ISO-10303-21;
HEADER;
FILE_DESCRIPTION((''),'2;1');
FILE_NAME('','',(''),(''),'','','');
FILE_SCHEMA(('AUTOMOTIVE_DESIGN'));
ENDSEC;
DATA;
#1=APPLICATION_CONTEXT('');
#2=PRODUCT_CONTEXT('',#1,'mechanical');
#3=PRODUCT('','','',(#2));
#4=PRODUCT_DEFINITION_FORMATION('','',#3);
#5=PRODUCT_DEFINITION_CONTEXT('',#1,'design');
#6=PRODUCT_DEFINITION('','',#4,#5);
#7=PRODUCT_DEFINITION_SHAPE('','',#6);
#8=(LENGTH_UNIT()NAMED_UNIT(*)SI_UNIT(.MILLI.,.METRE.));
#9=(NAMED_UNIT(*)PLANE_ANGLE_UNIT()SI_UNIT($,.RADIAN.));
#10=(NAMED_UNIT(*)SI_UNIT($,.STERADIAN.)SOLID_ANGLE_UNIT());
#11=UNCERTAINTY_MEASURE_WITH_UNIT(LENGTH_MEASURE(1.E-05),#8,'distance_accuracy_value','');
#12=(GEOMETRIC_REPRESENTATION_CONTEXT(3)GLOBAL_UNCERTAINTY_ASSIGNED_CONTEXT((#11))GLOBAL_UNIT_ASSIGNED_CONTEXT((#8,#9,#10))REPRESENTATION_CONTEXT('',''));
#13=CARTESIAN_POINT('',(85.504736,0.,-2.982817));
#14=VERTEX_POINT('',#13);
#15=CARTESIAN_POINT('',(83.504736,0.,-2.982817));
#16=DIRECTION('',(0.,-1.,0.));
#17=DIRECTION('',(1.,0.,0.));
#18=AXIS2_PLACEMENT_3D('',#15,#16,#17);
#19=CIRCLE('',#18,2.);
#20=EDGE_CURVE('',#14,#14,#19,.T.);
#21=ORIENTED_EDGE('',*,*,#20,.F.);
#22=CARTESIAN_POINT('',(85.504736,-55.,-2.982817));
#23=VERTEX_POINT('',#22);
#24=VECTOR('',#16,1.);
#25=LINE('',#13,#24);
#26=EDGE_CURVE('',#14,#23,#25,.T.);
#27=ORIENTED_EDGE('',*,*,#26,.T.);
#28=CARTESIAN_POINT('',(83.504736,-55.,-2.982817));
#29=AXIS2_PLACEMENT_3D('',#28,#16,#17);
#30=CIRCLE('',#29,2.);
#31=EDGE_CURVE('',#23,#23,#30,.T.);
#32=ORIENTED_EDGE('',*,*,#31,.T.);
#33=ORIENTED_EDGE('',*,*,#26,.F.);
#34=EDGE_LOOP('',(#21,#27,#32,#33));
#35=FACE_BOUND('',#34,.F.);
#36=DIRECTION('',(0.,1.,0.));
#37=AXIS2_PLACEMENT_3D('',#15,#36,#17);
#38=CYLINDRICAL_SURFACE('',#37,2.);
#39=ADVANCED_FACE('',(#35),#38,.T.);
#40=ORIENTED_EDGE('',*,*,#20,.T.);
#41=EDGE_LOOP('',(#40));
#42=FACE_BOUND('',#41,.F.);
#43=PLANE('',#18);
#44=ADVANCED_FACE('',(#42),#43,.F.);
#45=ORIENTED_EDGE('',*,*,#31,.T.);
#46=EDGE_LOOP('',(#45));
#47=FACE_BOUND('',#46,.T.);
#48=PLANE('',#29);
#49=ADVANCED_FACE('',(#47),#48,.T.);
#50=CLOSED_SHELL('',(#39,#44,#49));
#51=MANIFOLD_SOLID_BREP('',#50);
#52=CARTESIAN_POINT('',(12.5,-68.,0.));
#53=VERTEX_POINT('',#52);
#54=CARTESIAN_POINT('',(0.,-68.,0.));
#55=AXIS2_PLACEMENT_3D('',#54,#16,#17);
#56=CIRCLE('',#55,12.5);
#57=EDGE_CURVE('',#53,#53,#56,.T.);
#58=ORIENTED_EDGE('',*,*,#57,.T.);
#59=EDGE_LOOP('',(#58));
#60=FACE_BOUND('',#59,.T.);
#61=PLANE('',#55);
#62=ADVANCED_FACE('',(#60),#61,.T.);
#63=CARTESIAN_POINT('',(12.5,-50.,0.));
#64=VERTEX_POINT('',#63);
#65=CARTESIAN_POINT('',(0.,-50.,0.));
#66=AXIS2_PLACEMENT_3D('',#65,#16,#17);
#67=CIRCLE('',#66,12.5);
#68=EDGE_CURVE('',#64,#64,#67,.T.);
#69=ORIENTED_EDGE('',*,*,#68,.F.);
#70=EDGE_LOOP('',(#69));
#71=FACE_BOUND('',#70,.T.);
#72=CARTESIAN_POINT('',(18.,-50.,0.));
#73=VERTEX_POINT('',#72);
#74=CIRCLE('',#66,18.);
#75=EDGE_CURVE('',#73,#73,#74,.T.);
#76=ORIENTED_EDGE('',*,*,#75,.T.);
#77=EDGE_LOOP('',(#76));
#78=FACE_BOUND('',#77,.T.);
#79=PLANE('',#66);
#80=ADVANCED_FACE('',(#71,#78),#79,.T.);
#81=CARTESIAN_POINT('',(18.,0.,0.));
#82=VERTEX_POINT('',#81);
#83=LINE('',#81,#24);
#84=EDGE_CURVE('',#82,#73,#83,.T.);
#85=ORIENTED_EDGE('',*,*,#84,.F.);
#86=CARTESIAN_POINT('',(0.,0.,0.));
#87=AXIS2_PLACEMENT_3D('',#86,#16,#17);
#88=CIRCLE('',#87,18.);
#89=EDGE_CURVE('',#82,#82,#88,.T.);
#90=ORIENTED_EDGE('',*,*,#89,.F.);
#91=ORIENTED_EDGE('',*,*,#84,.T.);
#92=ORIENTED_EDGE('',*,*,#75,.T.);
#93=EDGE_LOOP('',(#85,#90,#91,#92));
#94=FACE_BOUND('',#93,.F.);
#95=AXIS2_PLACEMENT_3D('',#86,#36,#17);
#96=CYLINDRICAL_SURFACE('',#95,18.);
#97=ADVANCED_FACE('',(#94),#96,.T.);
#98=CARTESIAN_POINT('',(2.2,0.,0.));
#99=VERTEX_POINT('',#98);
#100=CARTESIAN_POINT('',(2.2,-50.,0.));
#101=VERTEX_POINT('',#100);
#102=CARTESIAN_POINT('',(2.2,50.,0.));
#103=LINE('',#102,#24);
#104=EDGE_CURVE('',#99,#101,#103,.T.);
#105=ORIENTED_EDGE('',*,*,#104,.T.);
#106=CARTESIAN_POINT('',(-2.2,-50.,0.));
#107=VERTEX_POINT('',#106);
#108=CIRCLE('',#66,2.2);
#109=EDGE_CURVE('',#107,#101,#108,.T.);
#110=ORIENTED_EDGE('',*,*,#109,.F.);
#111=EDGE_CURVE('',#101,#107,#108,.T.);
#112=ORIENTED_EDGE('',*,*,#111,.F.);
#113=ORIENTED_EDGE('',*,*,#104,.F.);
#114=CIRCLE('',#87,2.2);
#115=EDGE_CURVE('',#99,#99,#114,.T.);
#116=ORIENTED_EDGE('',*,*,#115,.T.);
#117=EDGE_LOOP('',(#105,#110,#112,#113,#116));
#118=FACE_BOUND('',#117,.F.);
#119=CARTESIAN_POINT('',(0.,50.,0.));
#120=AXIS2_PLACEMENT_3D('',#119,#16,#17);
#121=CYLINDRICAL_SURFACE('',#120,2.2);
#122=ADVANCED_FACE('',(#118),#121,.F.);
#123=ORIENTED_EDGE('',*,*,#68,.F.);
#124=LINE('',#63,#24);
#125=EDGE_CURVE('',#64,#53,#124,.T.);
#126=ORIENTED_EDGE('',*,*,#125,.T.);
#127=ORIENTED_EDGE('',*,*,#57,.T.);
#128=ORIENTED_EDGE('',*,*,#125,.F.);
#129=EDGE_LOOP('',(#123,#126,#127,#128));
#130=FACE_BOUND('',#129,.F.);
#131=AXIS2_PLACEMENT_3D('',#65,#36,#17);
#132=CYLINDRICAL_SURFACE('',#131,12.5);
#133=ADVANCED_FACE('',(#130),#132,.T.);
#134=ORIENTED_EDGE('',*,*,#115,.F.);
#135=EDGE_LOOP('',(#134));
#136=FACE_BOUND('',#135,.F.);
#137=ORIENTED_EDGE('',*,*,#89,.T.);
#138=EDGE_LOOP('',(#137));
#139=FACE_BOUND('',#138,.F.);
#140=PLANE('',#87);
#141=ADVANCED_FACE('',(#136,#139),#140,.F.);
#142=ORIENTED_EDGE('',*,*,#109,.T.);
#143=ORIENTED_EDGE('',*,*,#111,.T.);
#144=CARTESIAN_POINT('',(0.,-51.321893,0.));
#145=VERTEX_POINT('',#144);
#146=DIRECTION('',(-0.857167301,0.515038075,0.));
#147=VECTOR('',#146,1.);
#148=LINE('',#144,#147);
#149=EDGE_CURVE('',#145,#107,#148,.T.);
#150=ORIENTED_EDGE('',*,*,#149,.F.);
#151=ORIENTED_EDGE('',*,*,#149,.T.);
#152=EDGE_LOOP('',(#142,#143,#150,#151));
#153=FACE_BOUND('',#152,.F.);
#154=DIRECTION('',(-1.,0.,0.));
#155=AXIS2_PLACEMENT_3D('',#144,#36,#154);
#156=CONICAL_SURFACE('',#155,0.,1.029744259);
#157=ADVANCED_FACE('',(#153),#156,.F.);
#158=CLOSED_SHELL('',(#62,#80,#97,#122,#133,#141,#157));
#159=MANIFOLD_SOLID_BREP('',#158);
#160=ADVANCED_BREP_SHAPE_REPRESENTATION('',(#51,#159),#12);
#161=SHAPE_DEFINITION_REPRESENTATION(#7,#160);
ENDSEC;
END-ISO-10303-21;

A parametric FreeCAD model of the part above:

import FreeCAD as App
import Part
import Sketcher
Q = App.Units.Quantity

doc = App.newDocument("Part")
body = doc.addObject("PartDesign::Body", "Body")

sketch1 = doc.addObject("Sketcher::SketchObject", "Sketch")
body.addObject(sketch1)
sketch1.AttachmentSupport = (doc.XZ_Plane, [""])
sketch1.MapMode = "FlatFace"
sketch1.addGeometry(Part.Circle(App.Vector(0, 0, 0), App.Vector(0, 0, 1), 18), False)
sketch1.addConstraint([
    Sketcher.Constraint("Coincident", 0, 3, -1, 1),
    Sketcher.Constraint("Diameter", 0, Q("36 mm")),
])
pad1 = doc.addObject("PartDesign::Pad", "Pad")
body.addObject(pad1)
pad1.Profile = sketch1
pad1.Length = 50

sketch2 = doc.addObject("Sketcher::SketchObject", "Sketch001")
body.addObject(sketch2)
sketch2.AttachmentSupport = (doc.XZ_Plane, [""])
sketch2.MapMode = "FlatFace"
sketch2.AttachmentOffset = App.Placement(App.Vector(0, 0, 50), App.Rotation())
sketch2.addGeometry(Part.Circle(App.Vector(0, 0, 0), App.Vector(0, 0, 1), 12), False)
sketch2.addConstraint([
    Sketcher.Constraint("Coincident", 0, 3, -1, 1),
    Sketcher.Constraint("Diameter", 0, Q("25 mm")),
])
pad2 = doc.addObject("PartDesign::Pad", "Pad001")
body.addObject(pad2)
pad2.Profile = sketch2
pad2.Length = 18

sketch3 = doc.addObject("Sketcher::SketchObject", "Sketch002")
body.addObject(sketch3)
sketch3.AttachmentSupport = (doc.XZ_Plane, [""])
sketch3.MapMode = "FlatFace"
sketch3.addGeometry(Part.Circle(App.Vector(0, 0, 0), App.Vector(0, 0, 1), 2.2), False)
sketch3.addConstraint([
    Sketcher.Constraint("Coincident", 0, 3, -1, 1),
    Sketcher.Constraint("Diameter", 0, Q("4.4 mm")),
])
doc.recompute()
hole = doc.addObject("PartDesign::Hole", "Hole")
body.addObject(hole)
hole.Profile = sketch3
hole.ThreadType = "None"
hole.Diameter = 4.4
hole.DepthType = "Dimension"
hole.Depth = 50
hole.DrillPoint = "Angled"
hole.DrillPointAngle = 118
hole.Reversed = True
body2 = doc.addObject("PartDesign::Body", "Body001")

sketch4 = doc.addObject("Sketcher::SketchObject", "Sketch003")
body2.addObject(sketch4)
sketch4.AttachmentSupport = (doc.getObject("XZ_Plane001"), [""])
sketch4.MapMode = "FlatFace"
sketch4.addGeometry(Part.Circle(App.Vector(83.5, -3, 0), App.Vector(0, 0, 1), 2), False)
sketch4.addConstraint([
    Sketcher.Constraint("Diameter", 0, Q("4 mm")),
    Sketcher.Constraint("DistanceX", -1, 1, 0, 3, Q("83.504736 mm")),
    Sketcher.Constraint("DistanceY", 0, 3, -1, 1, Q("2.982817 mm")),
])
pad3 = doc.addObject("PartDesign::Pad", "Pad002")
body2.addObject(pad3)
pad3.Profile = sketch4
pad3.Length = 55

doc.recompute()
